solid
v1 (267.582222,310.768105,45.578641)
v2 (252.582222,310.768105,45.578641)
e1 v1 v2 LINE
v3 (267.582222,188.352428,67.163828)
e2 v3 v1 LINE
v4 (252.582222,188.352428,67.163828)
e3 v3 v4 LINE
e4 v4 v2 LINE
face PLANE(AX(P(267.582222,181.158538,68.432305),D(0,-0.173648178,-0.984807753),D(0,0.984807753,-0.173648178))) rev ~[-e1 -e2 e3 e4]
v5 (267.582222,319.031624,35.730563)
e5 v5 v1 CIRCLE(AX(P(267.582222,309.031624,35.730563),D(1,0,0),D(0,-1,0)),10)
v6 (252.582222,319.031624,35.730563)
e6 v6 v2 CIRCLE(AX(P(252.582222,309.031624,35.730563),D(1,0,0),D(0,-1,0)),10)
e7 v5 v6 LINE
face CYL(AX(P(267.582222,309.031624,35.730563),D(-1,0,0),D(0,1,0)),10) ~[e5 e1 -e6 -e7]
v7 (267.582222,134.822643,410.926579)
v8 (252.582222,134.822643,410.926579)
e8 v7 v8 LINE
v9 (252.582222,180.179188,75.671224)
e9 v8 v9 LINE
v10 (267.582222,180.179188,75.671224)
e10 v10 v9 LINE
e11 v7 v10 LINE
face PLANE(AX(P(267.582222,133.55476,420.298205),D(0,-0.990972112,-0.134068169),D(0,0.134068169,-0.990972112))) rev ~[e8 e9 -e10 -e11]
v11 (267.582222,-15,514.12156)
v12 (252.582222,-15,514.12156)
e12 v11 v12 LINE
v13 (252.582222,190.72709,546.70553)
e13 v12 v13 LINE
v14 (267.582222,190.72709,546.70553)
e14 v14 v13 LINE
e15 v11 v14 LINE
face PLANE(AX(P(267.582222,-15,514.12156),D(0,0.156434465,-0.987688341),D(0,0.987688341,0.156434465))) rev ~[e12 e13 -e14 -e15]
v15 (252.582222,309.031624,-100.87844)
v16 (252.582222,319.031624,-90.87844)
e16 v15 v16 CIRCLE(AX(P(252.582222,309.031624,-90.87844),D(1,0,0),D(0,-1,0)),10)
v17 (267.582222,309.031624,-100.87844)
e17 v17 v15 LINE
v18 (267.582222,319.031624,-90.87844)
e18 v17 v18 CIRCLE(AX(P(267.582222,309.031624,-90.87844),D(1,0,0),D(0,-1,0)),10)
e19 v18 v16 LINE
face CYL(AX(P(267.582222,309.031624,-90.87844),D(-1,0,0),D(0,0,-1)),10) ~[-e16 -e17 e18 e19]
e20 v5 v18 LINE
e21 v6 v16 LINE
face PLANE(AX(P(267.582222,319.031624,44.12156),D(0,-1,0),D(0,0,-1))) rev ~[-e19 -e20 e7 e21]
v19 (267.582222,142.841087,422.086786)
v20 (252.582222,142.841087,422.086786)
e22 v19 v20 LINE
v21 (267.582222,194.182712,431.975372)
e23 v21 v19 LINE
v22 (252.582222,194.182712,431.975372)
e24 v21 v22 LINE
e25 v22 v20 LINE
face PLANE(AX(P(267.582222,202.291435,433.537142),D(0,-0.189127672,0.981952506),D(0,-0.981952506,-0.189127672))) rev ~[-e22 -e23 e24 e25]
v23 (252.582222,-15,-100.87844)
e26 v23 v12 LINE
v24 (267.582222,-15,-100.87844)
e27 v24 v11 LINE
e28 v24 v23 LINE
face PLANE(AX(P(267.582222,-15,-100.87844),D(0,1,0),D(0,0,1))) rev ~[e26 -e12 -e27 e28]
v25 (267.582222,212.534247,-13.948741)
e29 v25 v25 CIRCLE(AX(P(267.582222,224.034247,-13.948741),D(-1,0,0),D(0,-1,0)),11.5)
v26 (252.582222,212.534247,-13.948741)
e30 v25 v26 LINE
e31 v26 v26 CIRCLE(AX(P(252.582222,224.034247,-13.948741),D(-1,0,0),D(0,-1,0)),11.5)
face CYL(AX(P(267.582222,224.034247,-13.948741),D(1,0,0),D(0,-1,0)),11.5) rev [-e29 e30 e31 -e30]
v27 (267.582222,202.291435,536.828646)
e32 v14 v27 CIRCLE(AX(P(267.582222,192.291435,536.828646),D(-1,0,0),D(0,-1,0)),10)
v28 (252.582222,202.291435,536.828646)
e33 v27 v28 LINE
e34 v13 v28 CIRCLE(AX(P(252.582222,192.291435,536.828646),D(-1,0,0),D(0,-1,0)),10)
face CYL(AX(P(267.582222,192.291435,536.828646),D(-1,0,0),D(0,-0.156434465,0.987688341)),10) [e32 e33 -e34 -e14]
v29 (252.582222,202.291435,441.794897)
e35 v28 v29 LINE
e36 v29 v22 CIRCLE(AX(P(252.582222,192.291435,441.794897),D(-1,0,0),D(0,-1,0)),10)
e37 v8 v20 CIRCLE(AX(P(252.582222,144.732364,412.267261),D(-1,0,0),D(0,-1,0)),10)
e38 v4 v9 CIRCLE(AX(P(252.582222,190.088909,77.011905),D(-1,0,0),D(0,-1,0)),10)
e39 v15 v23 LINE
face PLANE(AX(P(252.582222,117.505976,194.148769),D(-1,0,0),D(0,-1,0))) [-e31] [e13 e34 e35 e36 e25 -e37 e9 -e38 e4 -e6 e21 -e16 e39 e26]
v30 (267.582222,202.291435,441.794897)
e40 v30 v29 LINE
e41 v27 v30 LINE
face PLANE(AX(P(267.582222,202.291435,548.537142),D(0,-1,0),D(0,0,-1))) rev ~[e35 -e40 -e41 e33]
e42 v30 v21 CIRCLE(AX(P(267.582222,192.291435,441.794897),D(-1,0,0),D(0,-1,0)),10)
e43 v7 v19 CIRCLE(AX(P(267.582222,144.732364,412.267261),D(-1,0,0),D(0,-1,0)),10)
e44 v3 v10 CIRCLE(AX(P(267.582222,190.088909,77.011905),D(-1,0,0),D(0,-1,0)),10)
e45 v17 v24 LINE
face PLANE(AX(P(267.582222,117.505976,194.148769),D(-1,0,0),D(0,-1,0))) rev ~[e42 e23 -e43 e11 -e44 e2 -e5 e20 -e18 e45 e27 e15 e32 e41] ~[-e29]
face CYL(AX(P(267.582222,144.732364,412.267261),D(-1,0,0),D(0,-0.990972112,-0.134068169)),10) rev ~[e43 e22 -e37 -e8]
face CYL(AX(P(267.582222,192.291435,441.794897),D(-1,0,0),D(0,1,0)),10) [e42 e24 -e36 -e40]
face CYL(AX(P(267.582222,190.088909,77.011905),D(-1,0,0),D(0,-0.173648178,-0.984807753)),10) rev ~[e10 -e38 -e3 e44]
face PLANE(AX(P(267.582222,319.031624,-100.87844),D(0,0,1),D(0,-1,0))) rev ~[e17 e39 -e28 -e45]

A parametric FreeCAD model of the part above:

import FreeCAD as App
import Part
import Sketcher

V = App.Vector
Q = App.Units.Quantity


def edges_at(feature, points):
    """Names of the edges that pass closest to the given points."""
    edges = feature.Shape.Edges
    near = lambda p: min(range(len(edges)), key=lambda i: edges[i].distToShape(Part.Vertex(*p))[0])
    return sorted({f"Edge{near(p) + 1}" for p in points})

doc = App.newDocument("Part")
body = doc.addObject("PartDesign::Body", "Body")

# Sketch on XZ plane
sketch1 = body.newObject("Sketcher::SketchObject", "Sketch")
sketch1.AttachmentSupport = (doc.getObject("XZ_Plane"), [""])
sketch1.MapMode = "FlatFace"
sketch1.addGeometry([
    Part.LineSegment(V(-81.449402, -100.87844, 0), V(252.582222, -100.87844, 0)),  # 0
    Part.LineSegment(V(252.582222, -100.87844, 0), V(252.582222, 514.12156, 0)),  # 1
    Part.LineSegment(V(252.582222, 514.12156, 0), V(35.290787, 548.537142, 0)),  # 2
    Part.LineSegment(V(35.290787, 548.537142, 0), V(35.290787, 433.537142, 0)),  # 3
    Part.LineSegment(V(35.290787, 433.537142, 0), V(104.027462, 420.298205, 0)),  # 4
    Part.LineSegment(V(104.027462, 420.298205, 0), V(56.423683, 68.432305, 0)),  # 5
    Part.LineSegment(V(56.423683, 68.432305, 0), V(-81.449402, 44.12156, 0)),  # 6
    Part.LineSegment(V(-81.449402, 44.12156, 0), V(-81.449402, -100.87844, 0)),  # 7
    Part.Circle(V(13.547975, -13.948741, 0), V(0, 0, 1), 11.5),  # 8
], False)
sketch1.addConstraint([
    Sketcher.Constraint("Coincident", 0, 2, 1, 1),
    Sketcher.Constraint("Coincident", 1, 2, 2, 1),
    Sketcher.Constraint("Coincident", 2, 2, 3, 1),
    Sketcher.Constraint("Coincident", 3, 2, 4, 1),
    Sketcher.Constraint("Coincident", 4, 2, 5, 1),
    Sketcher.Constraint("Coincident", 5, 2, 6, 1),
    Sketcher.Constraint("Coincident", 6, 2, 7, 1),
    Sketcher.Constraint("Coincident", 7, 2, 0, 1),
    Sketcher.Constraint("Horizontal", 0),
    Sketcher.Constraint("Vertical", 1),
    Sketcher.Constraint("Vertical", 3),
    Sketcher.Constraint("Vertical", 7),
    Sketcher.Constraint("Diameter", 8, 23.0),
    Sketcher.Constraint("DistanceY", 1, 1, 1, 2, 615.0),
    Sketcher.Constraint("DistanceY", 3, 2, 3, 1, 115.0),
    Sketcher.Constraint("DistanceY", 7, 2, 7, 1, 145.0),
    Sketcher.Constraint("Angle", 2, Q("171 deg")),
    Sketcher.Constraint("Angle", 6, Q("-170 deg")),
    Sketcher.Constraint("Distance", 2, 220.0),
    Sketcher.Constraint("Distance", 4, 70.0),
    Sketcher.Constraint("Distance", 6, 140.0),
    Sketcher.Constraint("DistanceY", 0, 2, 8, 3, 86.9297),
    Sketcher.Constraint("DistanceY", 5, 2, 4, 2, 351.8659),
    Sketcher.Constraint("DistanceX", 0, 1, 0, 2, 334.031624),
    Sketcher.Constraint("DistanceY", 8, 3, -1, 1, 13.948741),
    Sketcher.Constraint("DistanceX", -1, 1, 0, 2, 252.582222),
    Sketcher.Constraint("DistanceX", 8, 3, 5, 2, 42.875709),
])
pad1 = body.newObject("PartDesign::Pad", "Pad")
pad1.Profile = sketch1
pad1.Length = 15
body2 = doc.addObject("PartDesign::Body", "Body001")
doc.recompute()

body.Placement = App.Placement(V(267.582222, 237.582222, 0), App.Rotation(V(0, 0, -1), 90))
boolean = body2.newObject("PartDesign::Boolean", "Boolean")
boolean.Type = "Fuse"
boolean.addObjects([body])
doc.recompute()

fillet = body2.newObject("PartDesign::Fillet", "Fillet")
fillet.Base = (boolean, edges_at(boolean, [
    (260.082, 202.291, 548.537),
    (260.082, 202.291, 433.537),
    (260.082, 133.555, 420.298),
    (260.082, 181.159, 68.432),
    (260.082, 319.032, 44.122),
    (260.082, 319.032, -100.878),
]))
fillet.Radius = 10

doc.recompute()
